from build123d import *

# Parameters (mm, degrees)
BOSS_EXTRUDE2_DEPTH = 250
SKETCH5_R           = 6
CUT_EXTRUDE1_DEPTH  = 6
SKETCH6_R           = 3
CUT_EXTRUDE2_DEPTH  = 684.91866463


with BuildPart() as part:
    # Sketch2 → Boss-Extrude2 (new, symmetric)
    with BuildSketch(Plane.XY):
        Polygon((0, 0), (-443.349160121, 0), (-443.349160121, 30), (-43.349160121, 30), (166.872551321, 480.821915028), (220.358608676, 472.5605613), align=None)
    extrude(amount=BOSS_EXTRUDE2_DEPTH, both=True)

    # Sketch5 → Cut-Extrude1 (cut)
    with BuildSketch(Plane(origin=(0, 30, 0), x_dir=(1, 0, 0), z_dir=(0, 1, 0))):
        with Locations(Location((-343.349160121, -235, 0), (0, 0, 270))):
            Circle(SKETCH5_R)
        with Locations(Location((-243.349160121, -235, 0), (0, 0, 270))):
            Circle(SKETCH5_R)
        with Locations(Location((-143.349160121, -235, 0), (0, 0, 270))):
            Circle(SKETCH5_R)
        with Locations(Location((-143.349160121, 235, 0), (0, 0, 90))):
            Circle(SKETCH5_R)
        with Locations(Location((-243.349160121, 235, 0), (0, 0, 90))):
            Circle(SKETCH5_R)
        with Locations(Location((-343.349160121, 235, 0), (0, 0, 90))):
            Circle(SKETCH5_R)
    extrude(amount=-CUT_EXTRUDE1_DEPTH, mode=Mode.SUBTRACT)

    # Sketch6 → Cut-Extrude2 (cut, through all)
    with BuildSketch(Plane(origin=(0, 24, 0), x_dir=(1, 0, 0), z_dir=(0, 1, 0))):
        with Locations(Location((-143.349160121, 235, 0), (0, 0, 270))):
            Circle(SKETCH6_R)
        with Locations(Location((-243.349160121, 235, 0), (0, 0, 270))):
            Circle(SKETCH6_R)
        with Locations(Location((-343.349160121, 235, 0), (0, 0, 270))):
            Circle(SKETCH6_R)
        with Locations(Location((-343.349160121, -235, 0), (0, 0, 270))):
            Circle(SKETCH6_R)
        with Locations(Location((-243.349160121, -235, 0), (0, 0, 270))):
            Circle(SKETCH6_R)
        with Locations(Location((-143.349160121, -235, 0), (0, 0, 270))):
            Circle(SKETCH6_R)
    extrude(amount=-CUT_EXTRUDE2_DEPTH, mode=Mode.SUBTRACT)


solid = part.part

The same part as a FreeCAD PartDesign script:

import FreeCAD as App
import Part
import Sketcher
from FreeCAD import Vector
Q = App.Units.Quantity

doc = App.newDocument("Part")
params = doc.addObject("Spreadsheet::Sheet", "Params")
for row, (alias, value) in enumerate([
    ("sketch1_width", "400 mm"),
    ("sketch1_height", "30 mm"),
    ("pad1_length", "500 mm"),
    ("sketch2_diameter", "12 mm"),
    ("pocket1_length", "6 mm"),
    ("sketch3_diameter", "6 mm"),
], start=1):
    params.set(f"A{row}", alias)
    params.set(f"B{row}", "=" + value)
    params.setAlias(f"B{row}", alias)

body = doc.addObject("PartDesign::Body", "Body")

sketch1 = body.newObject("Sketcher::SketchObject", "Sketch")
sketch1.AttachmentSupport = (doc.getObject("XY_Plane"), [""])
sketch1.MapMode = "FlatFace"
sketch1.addGeometry(Part.LineSegment(Vector(-443, 0, 0), Vector(0, 0, 0)), False)
sketch1.addGeometry(Part.LineSegment(Vector(0, 0, 0), Vector(220, 473, 0)), False)
sketch1.addGeometry(Part.LineSegment(Vector(220, 473, 0), Vector(167, 481, 0)), False)
sketch1.addGeometry(Part.LineSegment(Vector(167, 481, 0), Vector(-43, 30, 0)), False)
sketch1.addGeometry(Part.LineSegment(Vector(-43, 30, 0), Vector(-443, 30, 0)), False)
sketch1.addGeometry(Part.LineSegment(Vector(-443, 30, 0), Vector(-443, 0, 0)), False)
sketch1.addConstraint(Sketcher.Constraint("Coincident", 0, 2, 1, 1))
sketch1.addConstraint(Sketcher.Constraint("Coincident", 1, 2, 2, 1))
sketch1.addConstraint(Sketcher.Constraint("Coincident", 2, 2, 3, 1))
sketch1.addConstraint(Sketcher.Constraint("Coincident", 3, 2, 4, 1))
sketch1.addConstraint(Sketcher.Constraint("Coincident", 4, 2, 5, 1))
sketch1.addConstraint(Sketcher.Constraint("Coincident", 5, 2, 0, 1))
sketch1.addConstraint(Sketcher.Constraint("Horizontal", 0))
sketch1.addConstraint(Sketcher.Constraint("Horizontal", 4))
sketch1.addConstraint(Sketcher.Constraint("Vertical", 5))
sketch1.addConstraint(Sketcher.Constraint("Coincident", 0, 2, -1, 1))
sketch1.addConstraint(Sketcher.Constraint("Parallel", 1, 3))
sketch1.addConstraint(Sketcher.Constraint("DistanceX", 4, 2, 4, 1, Q("400 mm")))
sketch1.addConstraint(Sketcher.Constraint("DistanceY", 5, 2, 5, 1, Q("30 mm")))
sketch1.addConstraint(Sketcher.Constraint("Angle", 1, Q("65 deg")))
sketch1.addConstraint(Sketcher.Constraint("DistanceX", 0, 1, 0, 2, Q("443.34916 mm")))
sketch1.addConstraint(Sketcher.Constraint("Distance", 1, Q("521.412889 mm")))
sketch1.addConstraint(Sketcher.Constraint("DistanceX", -1, 1, 2, 2, Q("166.872551 mm")))
sketch1.setExpression("Constraints[11]", "Params.sketch1_width")
sketch1.setExpression("Constraints[12]", "Params.sketch1_height")
pad1 = body.newObject("PartDesign::Pad", "Pad")
pad1.Profile = sketch1
pad1.setExpression("Length", "Params.pad1_length")
pad1.Midplane = True

sketch2 = body.newObject("Sketcher::SketchObject", "Sketch001")
sketch2.AttachmentSupport = (doc.getObject("XZ_Plane"), [""])
sketch2.MapMode = "FlatFace"
sketch2.AttachmentOffset = App.Placement(Vector(0, 0, -30), App.Rotation())
sketch2.addGeometry(Part.Circle(Vector(-343, 235, 0), Vector(0, 0, 1), 6), False)
sketch2.addGeometry(Part.Circle(Vector(-243, 235, 0), Vector(0, 0, 1), 6), False)
sketch2.addGeometry(Part.Circle(Vector(-143, 235, 0), Vector(0, 0, 1), 6), False)
sketch2.addGeometry(Part.Circle(Vector(-143, -235, 0), Vector(0, 0, 1), 6), False)
sketch2.addGeometry(Part.Circle(Vector(-243, -235, 0), Vector(0, 0, 1), 6), False)
sketch2.addGeometry(Part.Circle(Vector(-343, -235, 0), Vector(0, 0, 1), 6), False)
sketch2.addConstraint(Sketcher.Constraint("Equal", 0, 1))
sketch2.addConstraint(Sketcher.Constraint("Equal", 1, 2))
sketch2.addConstraint(Sketcher.Constraint("Equal", 2, 3))
sketch2.addConstraint(Sketcher.Constraint("Equal", 3, 4))
sketch2.addConstraint(Sketcher.Constraint("Equal", 4, 5))
sketch2.addConstraint(Sketcher.Constraint("Symmetric", 2, 3, 3, 3, -1))
sketch2.addConstraint(Sketcher.Constraint("Symmetric", 1, 3, 4, 3, -1))
sketch2.addConstraint(Sketcher.Constraint("Symmetric", 0, 3, 5, 3, -1))
sketch2.addConstraint(Sketcher.Constraint("Horizontal", 0, 3, 1, 3))
sketch2.addConstraint(Sketcher.Constraint("Horizontal", 1, 3, 2, 3))
sketch2.addConstraint(Sketcher.Constraint("Diameter", 0, Q("12 mm")))
sketch2.addConstraint(Sketcher.Constraint("DistanceY", -1, 1, 0, 3, Q("235 mm")))
sketch2.addConstraint(Sketcher.Constraint("DistanceX", 0, 3, 1, 3, Q("100 mm")))
sketch2.addConstraint(Sketcher.Constraint("DistanceX", 1, 3, 2, 3, Q("100 mm")))
sketch2.addConstraint(Sketcher.Constraint("DistanceX", 0, 3, -1, 1, Q("343.34916 mm")))
sketch2.setExpression("Constraints[10]", "Params.sketch2_diameter")
pocket1 = body.newObject("PartDesign::Pocket", "Pocket")
pocket1.Profile = sketch2
pocket1.setExpression("Length", "Params.pocket1_length")
pocket1.Reversed = True

sketch3 = body.newObject("Sketcher::SketchObject", "Sketch002")
sketch3.AttachmentSupport = (doc.getObject("XZ_Plane"), [""])
sketch3.MapMode = "FlatFace"
sketch3.AttachmentOffset = App.Placement(Vector(0, 0, -24), App.Rotation())
sketch3.addGeometry(Part.Circle(Vector(-143.3, -235, 0), Vector(0, 0, 1), 3), False)
sketch3.addGeometry(Part.Circle(Vector(-243.3, -235, 0), Vector(0, 0, 1), 3), False)
sketch3.addGeometry(Part.Circle(Vector(-343.3, -235, 0), Vector(0, 0, 1), 3), False)
sketch3.addGeometry(Part.Circle(Vector(-343.3, 235, 0), Vector(0, 0, 1), 3), False)
sketch3.addGeometry(Part.Circle(Vector(-243.3, 235, 0), Vector(0, 0, 1), 3), False)
sketch3.addGeometry(Part.Circle(Vector(-143.3, 235, 0), Vector(0, 0, 1), 3), False)
sketch3.addConstraint(Sketcher.Constraint("Equal", 0, 1))
sketch3.addConstraint(Sketcher.Constraint("Equal", 1, 2))
sketch3.addConstraint(Sketcher.Constraint("Equal", 2, 3))
sketch3.addConstraint(Sketcher.Constraint("Equal", 3, 4))
sketch3.addConstraint(Sketcher.Constraint("Equal", 4, 5))
sketch3.addConstraint(Sketcher.Constraint("Symmetric", 2, 3, 3, 3, -1))
sketch3.addConstraint(Sketcher.Constraint("Symmetric", 1, 3, 4, 3, -1))
sketch3.addConstraint(Sketcher.Constraint("Symmetric", 0, 3, 5, 3, -1))
sketch3.addConstraint(Sketcher.Constraint("Horizontal", 0, 3, 1, 3))
sketch3.addConstraint(Sketcher.Constraint("Horizontal", 1, 3, 2, 3))
sketch3.addConstraint(Sketcher.Constraint("Diameter", 0, Q("6 mm")))
sketch3.addConstraint(Sketcher.Constraint("DistanceY", 0, 3, -1, 1, Q("235 mm")))
sketch3.addConstraint(Sketcher.Constraint("DistanceX", 1, 3, 0, 3, Q("100 mm")))
sketch3.addConstraint(Sketcher.Constraint("DistanceX", 2, 3, 1, 3, Q("100 mm")))
sketch3.addConstraint(Sketcher.Constraint("DistanceX", 0, 3, -1, 1, Q("143.34916 mm")))
sketch3.setExpression("Constraints[10]", "Params.sketch3_diameter")
pocket2 = body.newObject("PartDesign::Pocket", "Pocket001")
pocket2.Profile = sketch3
pocket2.Type = "ThroughAll"
pocket2.Reversed = True

doc.recompute()
